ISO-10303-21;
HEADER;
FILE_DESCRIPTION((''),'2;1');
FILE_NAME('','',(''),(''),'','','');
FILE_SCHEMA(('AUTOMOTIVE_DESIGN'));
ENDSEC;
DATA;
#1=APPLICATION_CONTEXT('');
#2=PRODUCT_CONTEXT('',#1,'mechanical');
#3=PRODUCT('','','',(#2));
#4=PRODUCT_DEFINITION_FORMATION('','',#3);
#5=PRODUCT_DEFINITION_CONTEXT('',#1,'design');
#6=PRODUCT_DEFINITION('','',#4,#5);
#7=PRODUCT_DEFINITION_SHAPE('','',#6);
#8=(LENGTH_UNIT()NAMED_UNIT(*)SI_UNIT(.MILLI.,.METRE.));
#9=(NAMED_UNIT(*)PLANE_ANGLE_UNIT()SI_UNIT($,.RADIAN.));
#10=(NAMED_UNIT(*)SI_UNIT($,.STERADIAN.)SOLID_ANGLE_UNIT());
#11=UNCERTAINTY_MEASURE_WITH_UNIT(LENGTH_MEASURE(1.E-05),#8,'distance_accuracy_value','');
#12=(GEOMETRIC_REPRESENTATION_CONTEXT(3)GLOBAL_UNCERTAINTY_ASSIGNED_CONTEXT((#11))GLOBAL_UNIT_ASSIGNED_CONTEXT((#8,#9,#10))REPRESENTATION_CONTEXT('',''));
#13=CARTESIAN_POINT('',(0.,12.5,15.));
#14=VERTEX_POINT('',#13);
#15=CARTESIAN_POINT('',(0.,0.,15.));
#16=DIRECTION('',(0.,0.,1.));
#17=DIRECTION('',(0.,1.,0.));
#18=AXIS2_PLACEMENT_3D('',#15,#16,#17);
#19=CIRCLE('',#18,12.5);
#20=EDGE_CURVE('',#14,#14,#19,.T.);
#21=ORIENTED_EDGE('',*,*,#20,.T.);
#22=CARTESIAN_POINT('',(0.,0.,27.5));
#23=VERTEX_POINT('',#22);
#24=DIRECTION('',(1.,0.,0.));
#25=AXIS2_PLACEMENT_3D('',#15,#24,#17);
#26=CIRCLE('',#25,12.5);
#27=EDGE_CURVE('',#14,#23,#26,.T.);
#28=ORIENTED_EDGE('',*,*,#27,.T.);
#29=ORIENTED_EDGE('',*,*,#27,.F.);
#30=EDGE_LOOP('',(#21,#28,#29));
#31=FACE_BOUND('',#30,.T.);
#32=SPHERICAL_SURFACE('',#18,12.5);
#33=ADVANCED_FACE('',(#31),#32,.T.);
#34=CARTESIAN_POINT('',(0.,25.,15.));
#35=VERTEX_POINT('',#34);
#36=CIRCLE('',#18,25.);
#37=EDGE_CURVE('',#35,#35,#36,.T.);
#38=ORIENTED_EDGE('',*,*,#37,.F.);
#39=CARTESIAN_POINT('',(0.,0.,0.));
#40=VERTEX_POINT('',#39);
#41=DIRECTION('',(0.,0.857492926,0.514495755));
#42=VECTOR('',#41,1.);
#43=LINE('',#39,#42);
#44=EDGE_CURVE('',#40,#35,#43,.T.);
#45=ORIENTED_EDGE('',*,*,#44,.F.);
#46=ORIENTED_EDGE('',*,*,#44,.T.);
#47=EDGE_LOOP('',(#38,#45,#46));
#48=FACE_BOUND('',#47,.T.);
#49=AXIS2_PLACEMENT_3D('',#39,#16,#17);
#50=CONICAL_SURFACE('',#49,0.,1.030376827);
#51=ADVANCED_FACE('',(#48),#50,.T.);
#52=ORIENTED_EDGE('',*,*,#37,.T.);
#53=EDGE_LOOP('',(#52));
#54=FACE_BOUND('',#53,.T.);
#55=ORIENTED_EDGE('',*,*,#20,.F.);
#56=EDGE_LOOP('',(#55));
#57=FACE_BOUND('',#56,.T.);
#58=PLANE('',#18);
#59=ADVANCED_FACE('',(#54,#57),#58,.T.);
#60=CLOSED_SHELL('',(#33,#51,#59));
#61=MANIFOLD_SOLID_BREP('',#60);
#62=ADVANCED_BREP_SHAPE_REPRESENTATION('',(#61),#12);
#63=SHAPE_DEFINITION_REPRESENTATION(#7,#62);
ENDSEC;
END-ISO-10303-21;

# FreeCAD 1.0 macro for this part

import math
import FreeCAD as App
import Part
import Sketcher
from FreeCAD import Vector


def add_polygon(sketch, points):
    """Adds a closed chain of lines whose ends are joined by coincident constraints."""
    first, n = sketch.GeometryCount, len(points)
    for a, b in zip(points, points[1:] + points[:1]):
        sketch.addGeometry(Part.LineSegment(App.Vector(*a, 0), App.Vector(*b, 0)), False)
    for i in range(n):
        sketch.addConstraint(Sketcher.Constraint("Coincident", first + i, 2, first + (i + 1) % n, 1))

doc = App.newDocument("Part")
body = doc.addObject("PartDesign::Body", "Body")

sketch1 = body.newObject("Sketcher::SketchObject", "Sketch")
sketch1.AttachmentSupport = (doc.getObject("YZ_Plane"), [""])
sketch1.MapMode = "FlatFace"
add_polygon(sketch1, [(0, 15), (0, 0), (25, 15)])
sketch1.addConstraint([
    Sketcher.Constraint("Vertical", 0),
    Sketcher.Constraint("Horizontal", 2),
    Sketcher.Constraint("Coincident", 0, 2, -1, 1),
    Sketcher.Constraint("DistanceX", 2, 2, 2, 1, 25.0),
    Sketcher.Constraint("DistanceY", 0, 2, 0, 1, 15.0),
])
revolution = body.newObject("PartDesign::Revolution", "Revolution")
revolution.Profile = sketch1
revolution.ReferenceAxis = (sketch1, ["V_Axis"])
revolution.Angle = 360

sketch2 = body.newObject("Sketcher::SketchObject", "Sketch001")
sketch2.AttachmentSupport = (doc.getObject("YZ_Plane"), [""])
sketch2.MapMode = "FlatFace"
sketch2.addGeometry([
    Part.LineSegment(Vector(0, 27.5, 0), Vector(0, 2.5, 0)),
    Part.ArcOfCircle(Part.Circle(Vector(0, 15, 0), Vector(0, 0, 1), 12.5), math.radians(-90), math.radians(0)),
    Part.ArcOfCircle(Part.Circle(Vector(0, 15, 0), Vector(0, 0, 1), 12.5), math.radians(0), math.radians(90)),
], False)
sketch2.addConstraint([
    Sketcher.Constraint("Coincident", 0, 2, 1, 1),
    Sketcher.Constraint("Tangent", 1, 2, 2, 1),
    Sketcher.Constraint("Coincident", 2, 2, 0, 1),
    Sketcher.Constraint("Vertical", 0),
    Sketcher.Constraint("Equal", 1, 2),
    Sketcher.Constraint("PointOnObject", 1, 3, -2),
    Sketcher.Constraint("PointOnObject", 0, 2, -2),
    Sketcher.Constraint("Horizontal", 2, 3, 1, 2),
    Sketcher.Constraint("Radius", 1, 12.5),
    Sketcher.Constraint("DistanceY", -1, 1, 1, 3, 15.0),
])
revolution2 = body.newObject("PartDesign::Revolution", "Revolution001")
revolution2.Profile = sketch2
revolution2.ReferenceAxis = (sketch2, ["V_Axis"])
revolution2.Angle = 360

doc.recompute()
